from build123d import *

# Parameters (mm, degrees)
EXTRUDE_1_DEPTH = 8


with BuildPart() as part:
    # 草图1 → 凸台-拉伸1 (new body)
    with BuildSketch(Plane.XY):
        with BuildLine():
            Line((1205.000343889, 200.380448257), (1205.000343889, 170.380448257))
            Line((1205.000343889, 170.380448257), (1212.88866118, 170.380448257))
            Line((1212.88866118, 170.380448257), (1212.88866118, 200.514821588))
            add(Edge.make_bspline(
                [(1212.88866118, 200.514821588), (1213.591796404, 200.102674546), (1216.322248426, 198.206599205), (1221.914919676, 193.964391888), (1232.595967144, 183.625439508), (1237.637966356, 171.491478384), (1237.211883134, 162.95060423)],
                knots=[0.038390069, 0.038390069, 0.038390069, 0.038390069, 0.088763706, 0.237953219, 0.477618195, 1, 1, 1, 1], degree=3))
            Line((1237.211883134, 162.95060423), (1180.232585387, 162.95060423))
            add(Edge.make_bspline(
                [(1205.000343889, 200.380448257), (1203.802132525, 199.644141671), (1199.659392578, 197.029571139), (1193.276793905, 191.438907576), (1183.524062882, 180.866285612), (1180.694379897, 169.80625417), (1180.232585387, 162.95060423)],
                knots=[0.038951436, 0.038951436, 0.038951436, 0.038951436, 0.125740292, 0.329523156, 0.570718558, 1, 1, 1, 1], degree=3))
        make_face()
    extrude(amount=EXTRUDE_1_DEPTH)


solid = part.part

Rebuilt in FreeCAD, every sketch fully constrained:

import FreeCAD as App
import Part
import Sketcher
from FreeCAD import Vector

doc = App.newDocument("Part")
body = doc.addObject("PartDesign::Body", "Body")

# Sketch on XY plane
sketch1 = body.newObject("Sketcher::SketchObject", "Sketch")
sketch1.AttachmentSupport = (doc.getObject("XY_Plane"), [""])
sketch1.MapMode = "FlatFace"
sketch1.addGeometry(Part.LineSegment(Vector(1205.000344, 170.380448, 0), Vector(1205.000344, 200.380448, 0)), False)
sketch1.addGeometry(Part.BSplineCurve([Vector(1205.000344, 200.380448, 0), Vector(1203.802133, 199.644142, 0), Vector(1199.659393, 197.029571, 0), Vector(1193.276794, 191.438908, 0), Vector(1183.524063, 180.866286, 0), Vector(1180.69438, 169.806254, 0), Vector(1180.232585, 162.950604, 0)], [4, 1, 1, 1, 4], [0.038951436, 0.125740292, 0.329523156, 0.570718558, 1], False, 3, [1, 1, 1, 1, 1, 1, 1], False), False)
sketch1.addGeometry(Part.LineSegment(Vector(1180.232585, 162.950604, 0), Vector(1237.211883, 162.950604, 0)), False)
sketch1.addGeometry(Part.BSplineCurve([Vector(1212.888661, 200.514822, 0), Vector(1213.591796, 200.102675, 0), Vector(1216.322248, 198.206599, 0), Vector(1221.91492, 193.964392, 0), Vector(1232.595967, 183.62544, 0), Vector(1237.637966, 171.491478, 0), Vector(1237.211883, 162.950604, 0)], [4, 1, 1, 1, 4], [0.038390069, 0.088763706, 0.237953219, 0.477618195, 1], False, 3, [1, 1, 1, 1, 1, 1, 1], False), False)
sketch1.addGeometry(Part.LineSegment(Vector(1212.888661, 200.514822, 0), Vector(1212.888661, 170.380448, 0)), False)
sketch1.addGeometry(Part.LineSegment(Vector(1212.888661, 170.380448, 0), Vector(1205.000344, 170.380448, 0)), False)
sketch1.addConstraint(Sketcher.Constraint("Block", 1))
sketch1.addConstraint(Sketcher.Constraint("Block", 3))
sketch1.addConstraint(Sketcher.Constraint("Coincident", 0, 2, 1, 1))
sketch1.addConstraint(Sketcher.Constraint("Coincident", 1, 2, 2, 1))
sketch1.addConstraint(Sketcher.Constraint("Coincident", 2, 2, 3, 2))
sketch1.addConstraint(Sketcher.Constraint("Coincident", 3, 1, 4, 1))
sketch1.addConstraint(Sketcher.Constraint("Coincident", 4, 2, 5, 1))
sketch1.addConstraint(Sketcher.Constraint("Coincident", 5, 2, 0, 1))
sketch1.addConstraint(Sketcher.Constraint("Vertical", 0))
sketch1.addConstraint(Sketcher.Constraint("Vertical", 4))
sketch1.addConstraint(Sketcher.Constraint("Horizontal", 5))
sketch1.addConstraint(Sketcher.Constraint("DistanceY", 0, 1, 0, 2, 30.0))
pad1 = body.newObject("PartDesign::Pad", "Pad")
pad1.Profile = sketch1
pad1.Length = 8

doc.recompute()
